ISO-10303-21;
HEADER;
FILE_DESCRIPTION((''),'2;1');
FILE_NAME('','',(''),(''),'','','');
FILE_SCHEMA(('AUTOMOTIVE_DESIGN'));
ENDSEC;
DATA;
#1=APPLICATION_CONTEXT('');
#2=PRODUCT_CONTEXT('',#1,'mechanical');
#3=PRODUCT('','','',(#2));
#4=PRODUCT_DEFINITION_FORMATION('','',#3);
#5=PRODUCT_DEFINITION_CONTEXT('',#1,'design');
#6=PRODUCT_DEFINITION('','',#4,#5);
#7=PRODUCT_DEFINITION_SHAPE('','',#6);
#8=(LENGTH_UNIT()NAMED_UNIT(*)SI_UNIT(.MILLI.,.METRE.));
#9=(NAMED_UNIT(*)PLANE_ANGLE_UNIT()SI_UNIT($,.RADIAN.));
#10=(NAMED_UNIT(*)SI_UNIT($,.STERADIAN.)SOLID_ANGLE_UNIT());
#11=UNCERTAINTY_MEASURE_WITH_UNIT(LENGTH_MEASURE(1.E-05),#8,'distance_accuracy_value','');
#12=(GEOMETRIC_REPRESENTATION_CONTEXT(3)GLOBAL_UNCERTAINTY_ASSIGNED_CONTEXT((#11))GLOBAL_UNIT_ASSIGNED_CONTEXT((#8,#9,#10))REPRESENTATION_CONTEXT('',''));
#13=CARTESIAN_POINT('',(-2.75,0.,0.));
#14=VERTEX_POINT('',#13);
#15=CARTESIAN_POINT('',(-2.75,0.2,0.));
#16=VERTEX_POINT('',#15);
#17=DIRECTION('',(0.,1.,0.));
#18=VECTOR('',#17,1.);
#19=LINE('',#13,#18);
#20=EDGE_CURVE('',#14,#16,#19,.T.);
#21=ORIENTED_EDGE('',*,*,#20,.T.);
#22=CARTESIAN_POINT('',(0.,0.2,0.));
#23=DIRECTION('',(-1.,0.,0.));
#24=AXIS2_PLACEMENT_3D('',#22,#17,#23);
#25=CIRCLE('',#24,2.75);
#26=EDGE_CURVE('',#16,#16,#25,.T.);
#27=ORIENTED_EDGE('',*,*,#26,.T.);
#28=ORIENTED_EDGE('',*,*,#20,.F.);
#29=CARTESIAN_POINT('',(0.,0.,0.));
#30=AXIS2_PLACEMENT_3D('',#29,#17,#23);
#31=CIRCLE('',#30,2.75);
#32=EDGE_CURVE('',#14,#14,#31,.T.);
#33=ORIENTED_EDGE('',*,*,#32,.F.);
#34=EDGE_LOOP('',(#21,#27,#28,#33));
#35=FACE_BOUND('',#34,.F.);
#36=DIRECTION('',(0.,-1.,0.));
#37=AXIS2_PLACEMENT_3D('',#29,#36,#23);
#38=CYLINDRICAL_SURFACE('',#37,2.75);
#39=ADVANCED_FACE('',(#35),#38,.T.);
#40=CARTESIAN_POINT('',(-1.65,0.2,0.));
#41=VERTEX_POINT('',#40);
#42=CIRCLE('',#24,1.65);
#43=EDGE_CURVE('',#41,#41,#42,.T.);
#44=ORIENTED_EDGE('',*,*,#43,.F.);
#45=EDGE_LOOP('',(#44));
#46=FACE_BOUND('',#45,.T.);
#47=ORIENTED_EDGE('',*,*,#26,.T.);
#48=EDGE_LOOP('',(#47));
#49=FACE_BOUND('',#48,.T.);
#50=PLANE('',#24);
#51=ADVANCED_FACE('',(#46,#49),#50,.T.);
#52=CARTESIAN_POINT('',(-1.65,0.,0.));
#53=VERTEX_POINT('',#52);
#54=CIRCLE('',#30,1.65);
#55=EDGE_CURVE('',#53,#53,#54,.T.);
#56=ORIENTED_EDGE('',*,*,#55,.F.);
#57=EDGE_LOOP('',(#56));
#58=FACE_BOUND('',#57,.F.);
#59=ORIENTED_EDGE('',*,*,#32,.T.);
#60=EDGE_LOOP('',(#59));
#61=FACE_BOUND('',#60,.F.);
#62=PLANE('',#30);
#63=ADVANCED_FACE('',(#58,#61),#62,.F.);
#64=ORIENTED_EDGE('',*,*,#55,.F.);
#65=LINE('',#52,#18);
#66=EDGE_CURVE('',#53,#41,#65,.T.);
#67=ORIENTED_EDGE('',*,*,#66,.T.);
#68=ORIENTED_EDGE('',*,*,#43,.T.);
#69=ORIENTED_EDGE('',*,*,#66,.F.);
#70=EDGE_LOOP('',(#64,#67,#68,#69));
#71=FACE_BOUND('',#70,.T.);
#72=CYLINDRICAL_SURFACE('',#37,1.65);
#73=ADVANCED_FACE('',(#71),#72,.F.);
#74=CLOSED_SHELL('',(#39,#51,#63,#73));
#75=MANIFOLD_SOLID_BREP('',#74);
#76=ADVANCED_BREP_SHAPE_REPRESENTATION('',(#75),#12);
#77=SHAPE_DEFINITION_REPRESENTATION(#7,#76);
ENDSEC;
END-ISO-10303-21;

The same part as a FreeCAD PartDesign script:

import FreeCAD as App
import Part
import Sketcher

V = App.Vector
Q = App.Units.Quantity

doc = App.newDocument("Part")
params = doc.addObject("Spreadsheet::Sheet", "Params")
for row, (alias, value) in enumerate([
    ("sketch1_diameter", "5.5 mm"),
    ("sketch1_diameter2", "3.3 mm"),
    ("pad1_length", "0.2 mm"),
], start=1):
    params.set(f"A{row}", alias)
    params.set(f"B{row}", "=" + value)
    params.setAlias(f"B{row}", alias)

body = doc.addObject("PartDesign::Body", "Body")

sketch1 = body.newObject("Sketcher::SketchObject", "Sketch")
sketch1.AttachmentSupport = (doc.getObject("XZ_Plane"), [""])
sketch1.MapMode = "FlatFace"
sketch1.addGeometry(Part.Circle(V(0, 0, 0), V(0, 0, 1), 2.8), False)
sketch1.addGeometry(Part.Circle(V(0, 0, 0), V(0, 0, 1), 1.6), False)
sketch1.addConstraint(Sketcher.Constraint("Coincident", 0, 3, -1, 1))
sketch1.addConstraint(Sketcher.Constraint("Coincident", 1, 3, -1, 1))
sketch1.addConstraint(Sketcher.Constraint("Diameter", 0, Q("5.5 mm")))
sketch1.addConstraint(Sketcher.Constraint("Diameter", 1, Q("3.3 mm")))
sketch1.setExpression("Constraints[2]", "Params.sketch1_diameter")
sketch1.setExpression("Constraints[3]", "Params.sketch1_diameter2")
pad1 = body.newObject("PartDesign::Pad", "Pad")
pad1.Profile = sketch1
pad1.setExpression("Length", "Params.pad1_length")
pad1.Reversed = True

doc.recompute()
